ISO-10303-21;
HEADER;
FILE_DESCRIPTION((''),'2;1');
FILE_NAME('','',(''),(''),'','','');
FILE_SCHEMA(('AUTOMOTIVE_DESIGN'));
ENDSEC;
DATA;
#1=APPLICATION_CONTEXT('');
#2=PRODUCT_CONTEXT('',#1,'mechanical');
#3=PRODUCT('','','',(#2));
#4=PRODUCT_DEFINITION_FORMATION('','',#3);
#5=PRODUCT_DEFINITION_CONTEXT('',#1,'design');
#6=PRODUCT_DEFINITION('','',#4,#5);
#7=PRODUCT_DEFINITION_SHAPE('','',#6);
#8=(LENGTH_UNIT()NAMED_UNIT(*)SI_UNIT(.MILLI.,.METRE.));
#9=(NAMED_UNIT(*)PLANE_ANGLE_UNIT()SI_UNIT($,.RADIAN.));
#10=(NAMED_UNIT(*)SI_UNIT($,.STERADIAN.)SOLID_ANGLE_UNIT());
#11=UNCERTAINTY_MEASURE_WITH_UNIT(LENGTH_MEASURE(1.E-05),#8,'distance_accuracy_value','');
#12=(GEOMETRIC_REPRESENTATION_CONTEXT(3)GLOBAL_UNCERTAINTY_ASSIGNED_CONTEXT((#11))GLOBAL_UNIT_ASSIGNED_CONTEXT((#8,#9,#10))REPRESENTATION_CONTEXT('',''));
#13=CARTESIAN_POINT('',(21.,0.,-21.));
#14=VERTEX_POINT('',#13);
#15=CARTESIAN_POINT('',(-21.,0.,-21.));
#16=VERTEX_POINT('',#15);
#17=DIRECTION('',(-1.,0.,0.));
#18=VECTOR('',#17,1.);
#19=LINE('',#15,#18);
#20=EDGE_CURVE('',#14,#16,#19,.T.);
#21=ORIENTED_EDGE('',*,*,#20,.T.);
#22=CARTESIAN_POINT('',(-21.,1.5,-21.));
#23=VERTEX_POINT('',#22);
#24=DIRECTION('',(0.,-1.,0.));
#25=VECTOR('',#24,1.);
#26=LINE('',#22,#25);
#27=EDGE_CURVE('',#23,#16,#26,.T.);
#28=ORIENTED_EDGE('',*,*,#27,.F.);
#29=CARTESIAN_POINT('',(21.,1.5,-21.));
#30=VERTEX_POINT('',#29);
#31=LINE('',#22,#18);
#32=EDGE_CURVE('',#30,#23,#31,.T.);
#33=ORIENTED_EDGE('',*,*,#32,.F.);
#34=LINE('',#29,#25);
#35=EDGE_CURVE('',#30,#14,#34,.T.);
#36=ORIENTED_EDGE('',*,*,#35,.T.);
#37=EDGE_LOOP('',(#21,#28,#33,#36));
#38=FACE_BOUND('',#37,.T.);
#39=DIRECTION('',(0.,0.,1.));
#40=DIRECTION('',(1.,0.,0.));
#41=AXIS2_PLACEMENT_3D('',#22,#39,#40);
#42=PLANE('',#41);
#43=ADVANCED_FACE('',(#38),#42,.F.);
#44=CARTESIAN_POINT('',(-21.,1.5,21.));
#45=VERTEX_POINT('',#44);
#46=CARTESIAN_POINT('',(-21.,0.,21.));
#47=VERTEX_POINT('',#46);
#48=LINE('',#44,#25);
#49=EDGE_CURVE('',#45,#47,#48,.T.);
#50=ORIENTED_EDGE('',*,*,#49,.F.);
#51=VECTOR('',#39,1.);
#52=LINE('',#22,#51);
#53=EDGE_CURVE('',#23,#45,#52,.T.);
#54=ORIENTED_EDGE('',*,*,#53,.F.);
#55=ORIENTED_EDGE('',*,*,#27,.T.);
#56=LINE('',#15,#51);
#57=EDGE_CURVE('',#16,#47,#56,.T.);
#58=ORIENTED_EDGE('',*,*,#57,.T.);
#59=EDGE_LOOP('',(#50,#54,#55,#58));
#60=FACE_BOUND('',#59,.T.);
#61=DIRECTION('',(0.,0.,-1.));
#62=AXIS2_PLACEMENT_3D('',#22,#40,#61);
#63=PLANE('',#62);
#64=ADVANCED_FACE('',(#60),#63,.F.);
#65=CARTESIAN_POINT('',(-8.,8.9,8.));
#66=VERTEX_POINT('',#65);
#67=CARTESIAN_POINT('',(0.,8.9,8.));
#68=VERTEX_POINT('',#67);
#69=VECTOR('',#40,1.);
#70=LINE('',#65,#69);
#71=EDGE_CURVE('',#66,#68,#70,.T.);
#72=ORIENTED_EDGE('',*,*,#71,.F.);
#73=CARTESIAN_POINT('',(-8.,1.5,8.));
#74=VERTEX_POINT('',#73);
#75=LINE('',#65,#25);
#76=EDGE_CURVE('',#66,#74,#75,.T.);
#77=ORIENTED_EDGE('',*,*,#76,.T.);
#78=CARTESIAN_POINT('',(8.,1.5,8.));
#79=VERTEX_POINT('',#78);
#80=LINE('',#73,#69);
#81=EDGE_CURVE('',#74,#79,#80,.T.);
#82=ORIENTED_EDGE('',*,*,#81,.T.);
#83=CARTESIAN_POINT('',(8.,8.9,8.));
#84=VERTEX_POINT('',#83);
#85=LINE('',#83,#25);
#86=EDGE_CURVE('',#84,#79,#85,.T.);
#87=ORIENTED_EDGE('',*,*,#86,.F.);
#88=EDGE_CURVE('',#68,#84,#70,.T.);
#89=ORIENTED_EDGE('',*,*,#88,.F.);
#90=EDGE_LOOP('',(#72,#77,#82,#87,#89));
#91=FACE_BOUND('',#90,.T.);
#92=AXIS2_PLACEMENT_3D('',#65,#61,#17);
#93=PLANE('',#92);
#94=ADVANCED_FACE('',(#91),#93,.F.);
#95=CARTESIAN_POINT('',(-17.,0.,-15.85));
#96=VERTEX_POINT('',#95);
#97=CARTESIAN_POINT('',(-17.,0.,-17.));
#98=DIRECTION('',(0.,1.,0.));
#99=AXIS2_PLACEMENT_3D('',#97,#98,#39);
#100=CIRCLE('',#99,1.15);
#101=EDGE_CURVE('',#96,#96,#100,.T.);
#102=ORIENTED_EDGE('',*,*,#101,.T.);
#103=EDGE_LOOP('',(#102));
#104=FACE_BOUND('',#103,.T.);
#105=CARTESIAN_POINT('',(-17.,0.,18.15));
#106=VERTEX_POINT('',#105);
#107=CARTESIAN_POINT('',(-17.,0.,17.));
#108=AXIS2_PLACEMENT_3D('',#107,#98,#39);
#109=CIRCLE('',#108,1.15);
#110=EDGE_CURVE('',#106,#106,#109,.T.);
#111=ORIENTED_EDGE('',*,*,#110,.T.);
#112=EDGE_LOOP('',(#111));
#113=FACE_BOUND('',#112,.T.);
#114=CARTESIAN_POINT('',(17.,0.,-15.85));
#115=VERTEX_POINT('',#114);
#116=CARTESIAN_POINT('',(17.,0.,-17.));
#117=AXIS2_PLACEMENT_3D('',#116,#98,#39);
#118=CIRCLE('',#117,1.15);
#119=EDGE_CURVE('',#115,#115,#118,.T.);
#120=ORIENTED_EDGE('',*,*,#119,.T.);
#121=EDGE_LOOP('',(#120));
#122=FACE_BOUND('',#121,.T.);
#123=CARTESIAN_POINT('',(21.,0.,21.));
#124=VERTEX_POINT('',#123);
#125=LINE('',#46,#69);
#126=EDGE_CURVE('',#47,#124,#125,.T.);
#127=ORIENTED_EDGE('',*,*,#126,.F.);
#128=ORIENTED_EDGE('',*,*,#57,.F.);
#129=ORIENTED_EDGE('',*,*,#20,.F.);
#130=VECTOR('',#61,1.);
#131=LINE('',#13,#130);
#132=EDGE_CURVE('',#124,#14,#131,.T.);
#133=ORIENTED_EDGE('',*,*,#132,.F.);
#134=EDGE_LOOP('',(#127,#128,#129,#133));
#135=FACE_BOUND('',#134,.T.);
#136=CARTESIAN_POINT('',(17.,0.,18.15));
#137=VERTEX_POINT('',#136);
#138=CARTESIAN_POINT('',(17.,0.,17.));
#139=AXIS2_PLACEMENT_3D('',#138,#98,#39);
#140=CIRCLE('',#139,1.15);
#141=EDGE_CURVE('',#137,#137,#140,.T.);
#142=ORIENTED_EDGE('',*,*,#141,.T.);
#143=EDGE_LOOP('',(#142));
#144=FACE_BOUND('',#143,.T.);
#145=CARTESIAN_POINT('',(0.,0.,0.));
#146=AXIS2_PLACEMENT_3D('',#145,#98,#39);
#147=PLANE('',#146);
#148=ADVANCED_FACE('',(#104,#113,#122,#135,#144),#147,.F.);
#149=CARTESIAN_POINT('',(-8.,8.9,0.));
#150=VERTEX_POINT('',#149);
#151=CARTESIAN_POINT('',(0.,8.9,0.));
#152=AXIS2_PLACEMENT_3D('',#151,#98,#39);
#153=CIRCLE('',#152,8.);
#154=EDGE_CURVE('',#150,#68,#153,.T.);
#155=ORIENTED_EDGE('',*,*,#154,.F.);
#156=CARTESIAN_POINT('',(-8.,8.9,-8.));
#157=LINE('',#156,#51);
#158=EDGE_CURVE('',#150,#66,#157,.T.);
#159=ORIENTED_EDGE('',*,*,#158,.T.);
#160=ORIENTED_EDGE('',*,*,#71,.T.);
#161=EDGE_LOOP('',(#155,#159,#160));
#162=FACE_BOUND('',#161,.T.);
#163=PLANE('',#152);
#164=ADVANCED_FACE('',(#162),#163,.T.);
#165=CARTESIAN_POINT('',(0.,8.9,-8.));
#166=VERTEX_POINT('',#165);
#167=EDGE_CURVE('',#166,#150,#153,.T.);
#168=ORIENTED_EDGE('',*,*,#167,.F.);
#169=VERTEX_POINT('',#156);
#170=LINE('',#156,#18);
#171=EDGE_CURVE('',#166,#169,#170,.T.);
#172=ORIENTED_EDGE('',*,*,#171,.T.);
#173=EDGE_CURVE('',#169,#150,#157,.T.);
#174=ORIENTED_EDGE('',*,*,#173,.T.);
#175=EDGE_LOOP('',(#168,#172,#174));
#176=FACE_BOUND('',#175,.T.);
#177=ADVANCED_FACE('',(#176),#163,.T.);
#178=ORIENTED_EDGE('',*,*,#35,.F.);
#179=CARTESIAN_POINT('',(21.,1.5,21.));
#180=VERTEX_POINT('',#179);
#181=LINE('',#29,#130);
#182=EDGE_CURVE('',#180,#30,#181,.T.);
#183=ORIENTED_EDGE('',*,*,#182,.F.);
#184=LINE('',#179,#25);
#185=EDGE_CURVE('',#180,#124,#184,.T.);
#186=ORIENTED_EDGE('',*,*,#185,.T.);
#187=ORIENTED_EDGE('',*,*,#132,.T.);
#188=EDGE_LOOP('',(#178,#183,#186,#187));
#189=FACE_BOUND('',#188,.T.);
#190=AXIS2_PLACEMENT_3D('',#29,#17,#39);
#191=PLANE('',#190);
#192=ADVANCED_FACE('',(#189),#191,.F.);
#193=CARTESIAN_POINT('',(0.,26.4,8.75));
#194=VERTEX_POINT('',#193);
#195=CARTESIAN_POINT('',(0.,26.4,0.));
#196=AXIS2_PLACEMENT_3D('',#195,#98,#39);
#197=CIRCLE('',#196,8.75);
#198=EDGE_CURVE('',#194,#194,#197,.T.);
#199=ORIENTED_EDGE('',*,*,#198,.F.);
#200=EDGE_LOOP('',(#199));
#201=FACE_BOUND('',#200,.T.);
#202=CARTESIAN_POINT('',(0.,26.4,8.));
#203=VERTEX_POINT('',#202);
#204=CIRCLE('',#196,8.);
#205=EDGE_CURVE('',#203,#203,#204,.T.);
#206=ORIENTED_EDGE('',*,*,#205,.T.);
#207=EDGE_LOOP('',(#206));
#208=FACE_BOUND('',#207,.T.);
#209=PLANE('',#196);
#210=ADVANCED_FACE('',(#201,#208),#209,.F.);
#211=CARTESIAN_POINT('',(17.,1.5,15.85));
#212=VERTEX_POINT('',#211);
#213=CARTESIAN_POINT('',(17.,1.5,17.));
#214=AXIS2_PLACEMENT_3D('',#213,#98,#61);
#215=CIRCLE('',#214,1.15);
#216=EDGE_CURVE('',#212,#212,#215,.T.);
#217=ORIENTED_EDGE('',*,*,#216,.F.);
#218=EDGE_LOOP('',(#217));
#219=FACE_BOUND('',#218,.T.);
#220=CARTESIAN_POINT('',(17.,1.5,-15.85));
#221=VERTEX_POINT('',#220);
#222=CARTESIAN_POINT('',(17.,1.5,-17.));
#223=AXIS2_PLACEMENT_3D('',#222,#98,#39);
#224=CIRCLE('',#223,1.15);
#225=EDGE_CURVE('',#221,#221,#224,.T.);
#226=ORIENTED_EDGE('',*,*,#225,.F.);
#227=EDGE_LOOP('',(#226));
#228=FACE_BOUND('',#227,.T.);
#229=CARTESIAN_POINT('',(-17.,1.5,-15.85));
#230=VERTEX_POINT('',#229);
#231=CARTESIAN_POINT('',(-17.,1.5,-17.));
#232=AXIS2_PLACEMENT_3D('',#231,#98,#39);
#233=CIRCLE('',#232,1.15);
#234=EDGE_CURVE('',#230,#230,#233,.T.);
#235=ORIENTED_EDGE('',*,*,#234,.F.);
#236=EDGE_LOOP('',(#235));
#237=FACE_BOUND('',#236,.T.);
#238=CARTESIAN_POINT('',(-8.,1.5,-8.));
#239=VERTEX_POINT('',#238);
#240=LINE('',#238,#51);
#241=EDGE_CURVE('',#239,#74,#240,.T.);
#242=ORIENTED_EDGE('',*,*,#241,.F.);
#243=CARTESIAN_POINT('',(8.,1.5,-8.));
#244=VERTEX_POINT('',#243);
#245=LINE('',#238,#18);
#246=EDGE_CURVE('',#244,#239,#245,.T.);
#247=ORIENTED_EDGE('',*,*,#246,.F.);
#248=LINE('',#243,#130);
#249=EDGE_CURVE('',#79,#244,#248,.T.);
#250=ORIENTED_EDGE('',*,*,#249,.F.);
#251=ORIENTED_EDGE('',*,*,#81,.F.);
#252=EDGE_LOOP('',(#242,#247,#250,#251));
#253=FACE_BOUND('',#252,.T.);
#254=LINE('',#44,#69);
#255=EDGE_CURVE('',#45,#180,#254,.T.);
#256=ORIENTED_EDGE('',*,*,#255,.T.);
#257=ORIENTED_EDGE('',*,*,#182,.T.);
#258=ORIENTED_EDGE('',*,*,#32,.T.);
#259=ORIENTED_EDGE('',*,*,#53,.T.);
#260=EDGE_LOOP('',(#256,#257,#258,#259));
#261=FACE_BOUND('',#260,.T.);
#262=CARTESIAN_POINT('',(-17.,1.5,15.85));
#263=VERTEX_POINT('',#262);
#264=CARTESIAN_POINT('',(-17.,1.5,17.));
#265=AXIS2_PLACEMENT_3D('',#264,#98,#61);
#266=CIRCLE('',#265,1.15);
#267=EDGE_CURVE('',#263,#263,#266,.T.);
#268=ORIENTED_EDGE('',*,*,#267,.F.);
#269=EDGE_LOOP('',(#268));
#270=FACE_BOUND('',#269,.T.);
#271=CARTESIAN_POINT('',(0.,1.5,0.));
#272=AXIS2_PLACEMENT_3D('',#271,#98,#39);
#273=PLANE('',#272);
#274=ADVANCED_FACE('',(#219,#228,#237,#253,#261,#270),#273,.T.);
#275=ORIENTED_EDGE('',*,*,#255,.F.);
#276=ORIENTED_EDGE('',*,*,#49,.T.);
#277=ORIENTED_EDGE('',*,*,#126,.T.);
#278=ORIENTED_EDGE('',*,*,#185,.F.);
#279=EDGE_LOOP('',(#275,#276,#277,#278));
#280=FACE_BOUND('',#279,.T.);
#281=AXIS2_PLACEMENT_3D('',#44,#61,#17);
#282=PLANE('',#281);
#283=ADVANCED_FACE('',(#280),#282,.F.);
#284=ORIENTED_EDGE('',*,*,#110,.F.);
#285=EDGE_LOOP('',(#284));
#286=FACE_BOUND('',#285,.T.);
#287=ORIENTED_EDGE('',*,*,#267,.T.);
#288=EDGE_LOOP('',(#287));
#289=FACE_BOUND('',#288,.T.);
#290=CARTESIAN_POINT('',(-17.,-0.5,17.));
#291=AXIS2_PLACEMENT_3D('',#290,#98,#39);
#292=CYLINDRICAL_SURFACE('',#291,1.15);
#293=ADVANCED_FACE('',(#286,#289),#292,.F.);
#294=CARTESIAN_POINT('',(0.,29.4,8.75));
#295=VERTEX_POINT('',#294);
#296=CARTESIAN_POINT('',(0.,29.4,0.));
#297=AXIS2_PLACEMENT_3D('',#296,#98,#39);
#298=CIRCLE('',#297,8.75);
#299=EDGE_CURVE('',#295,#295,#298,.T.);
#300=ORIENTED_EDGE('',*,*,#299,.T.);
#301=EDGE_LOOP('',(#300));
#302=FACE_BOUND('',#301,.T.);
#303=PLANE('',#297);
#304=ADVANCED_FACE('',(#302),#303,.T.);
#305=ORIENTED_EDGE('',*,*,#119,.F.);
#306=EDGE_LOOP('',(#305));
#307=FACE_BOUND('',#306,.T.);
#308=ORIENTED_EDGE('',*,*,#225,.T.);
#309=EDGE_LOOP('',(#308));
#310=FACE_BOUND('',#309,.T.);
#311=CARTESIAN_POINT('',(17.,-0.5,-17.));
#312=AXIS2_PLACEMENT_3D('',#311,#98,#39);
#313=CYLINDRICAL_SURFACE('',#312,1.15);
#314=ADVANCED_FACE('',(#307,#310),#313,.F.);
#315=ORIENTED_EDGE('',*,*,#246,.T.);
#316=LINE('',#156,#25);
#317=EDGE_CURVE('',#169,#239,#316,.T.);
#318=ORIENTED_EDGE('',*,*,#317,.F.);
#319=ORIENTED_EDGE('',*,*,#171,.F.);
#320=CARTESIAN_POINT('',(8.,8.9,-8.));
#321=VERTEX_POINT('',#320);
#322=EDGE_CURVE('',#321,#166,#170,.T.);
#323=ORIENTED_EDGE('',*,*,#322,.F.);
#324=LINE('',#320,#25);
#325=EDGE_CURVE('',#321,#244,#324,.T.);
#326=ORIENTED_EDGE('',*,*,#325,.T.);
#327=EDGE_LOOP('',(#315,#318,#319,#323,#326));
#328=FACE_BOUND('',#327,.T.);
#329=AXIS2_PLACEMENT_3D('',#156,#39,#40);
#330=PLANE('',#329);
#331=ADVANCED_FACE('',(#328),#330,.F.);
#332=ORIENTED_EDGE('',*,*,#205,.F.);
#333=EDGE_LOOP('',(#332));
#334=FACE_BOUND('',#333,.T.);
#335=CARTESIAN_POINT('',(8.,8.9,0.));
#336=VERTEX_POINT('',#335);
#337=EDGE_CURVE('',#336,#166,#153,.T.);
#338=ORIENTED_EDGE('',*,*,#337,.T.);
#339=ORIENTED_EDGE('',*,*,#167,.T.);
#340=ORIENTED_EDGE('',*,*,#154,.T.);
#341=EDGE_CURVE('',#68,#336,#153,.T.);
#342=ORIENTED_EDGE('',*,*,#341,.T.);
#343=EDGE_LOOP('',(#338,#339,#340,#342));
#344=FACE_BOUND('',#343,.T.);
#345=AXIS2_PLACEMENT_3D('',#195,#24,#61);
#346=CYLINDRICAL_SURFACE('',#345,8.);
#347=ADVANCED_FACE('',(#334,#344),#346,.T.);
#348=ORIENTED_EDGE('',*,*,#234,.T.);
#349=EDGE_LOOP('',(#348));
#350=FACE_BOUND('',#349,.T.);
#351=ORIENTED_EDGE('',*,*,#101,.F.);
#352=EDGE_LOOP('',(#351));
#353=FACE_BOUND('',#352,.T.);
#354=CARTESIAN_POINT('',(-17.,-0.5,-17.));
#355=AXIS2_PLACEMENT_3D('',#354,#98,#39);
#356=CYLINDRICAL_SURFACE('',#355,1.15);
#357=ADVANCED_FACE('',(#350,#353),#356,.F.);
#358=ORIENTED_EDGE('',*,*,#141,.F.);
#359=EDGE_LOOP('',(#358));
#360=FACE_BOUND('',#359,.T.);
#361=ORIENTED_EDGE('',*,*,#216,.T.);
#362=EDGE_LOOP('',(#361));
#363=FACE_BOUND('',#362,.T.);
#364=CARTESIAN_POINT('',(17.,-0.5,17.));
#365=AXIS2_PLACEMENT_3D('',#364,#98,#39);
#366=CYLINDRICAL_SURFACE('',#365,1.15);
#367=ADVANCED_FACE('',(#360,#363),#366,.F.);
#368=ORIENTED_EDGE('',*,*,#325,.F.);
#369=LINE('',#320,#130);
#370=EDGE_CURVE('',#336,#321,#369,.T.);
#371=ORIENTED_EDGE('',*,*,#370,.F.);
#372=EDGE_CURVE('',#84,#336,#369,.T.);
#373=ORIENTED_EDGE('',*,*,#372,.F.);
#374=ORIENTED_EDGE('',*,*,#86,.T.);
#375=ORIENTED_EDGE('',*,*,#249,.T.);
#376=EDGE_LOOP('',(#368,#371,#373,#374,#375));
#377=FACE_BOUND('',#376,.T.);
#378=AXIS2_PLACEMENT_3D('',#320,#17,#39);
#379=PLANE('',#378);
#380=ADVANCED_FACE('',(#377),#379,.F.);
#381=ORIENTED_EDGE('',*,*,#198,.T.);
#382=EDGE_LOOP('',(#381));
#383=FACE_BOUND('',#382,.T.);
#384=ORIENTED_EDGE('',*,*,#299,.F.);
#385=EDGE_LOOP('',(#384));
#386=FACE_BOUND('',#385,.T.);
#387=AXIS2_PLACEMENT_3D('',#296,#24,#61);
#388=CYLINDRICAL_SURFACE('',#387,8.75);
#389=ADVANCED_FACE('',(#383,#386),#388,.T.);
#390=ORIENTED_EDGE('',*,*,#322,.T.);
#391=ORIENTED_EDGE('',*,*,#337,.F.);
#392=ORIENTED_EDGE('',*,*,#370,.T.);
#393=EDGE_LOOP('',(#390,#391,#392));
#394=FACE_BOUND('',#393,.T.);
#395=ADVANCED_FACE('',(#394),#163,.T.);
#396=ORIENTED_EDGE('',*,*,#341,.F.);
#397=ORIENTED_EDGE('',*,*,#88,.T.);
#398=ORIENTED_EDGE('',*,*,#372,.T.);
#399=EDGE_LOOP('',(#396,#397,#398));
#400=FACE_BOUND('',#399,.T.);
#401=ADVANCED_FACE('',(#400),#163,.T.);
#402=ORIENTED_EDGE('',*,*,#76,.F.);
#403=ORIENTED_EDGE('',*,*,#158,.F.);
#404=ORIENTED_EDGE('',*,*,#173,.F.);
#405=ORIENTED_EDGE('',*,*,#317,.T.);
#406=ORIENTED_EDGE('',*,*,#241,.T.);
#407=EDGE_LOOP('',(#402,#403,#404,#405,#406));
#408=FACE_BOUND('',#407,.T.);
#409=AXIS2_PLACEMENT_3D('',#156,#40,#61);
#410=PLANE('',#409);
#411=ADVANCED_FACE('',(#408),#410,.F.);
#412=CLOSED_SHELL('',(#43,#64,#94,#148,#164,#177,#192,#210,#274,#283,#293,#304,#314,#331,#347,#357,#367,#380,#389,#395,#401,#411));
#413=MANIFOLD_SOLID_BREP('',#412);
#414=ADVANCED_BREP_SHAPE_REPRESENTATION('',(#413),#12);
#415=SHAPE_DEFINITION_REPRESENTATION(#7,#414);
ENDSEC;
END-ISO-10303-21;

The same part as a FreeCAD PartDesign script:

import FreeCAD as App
import Part
import Sketcher
Q = App.Units.Quantity

doc = App.newDocument("Part")
params = doc.addObject("Spreadsheet::Sheet", "Params")
for row, (alias, value) in enumerate([
    ("sketch1_width", "42 mm"),
    ("pad1_length", "1.5 mm"),
    ("sketch2_diameter", "2.3 mm"),
    ("pocket1_length", "2 mm"),
    ("sketch3_diameter", "16 mm"),
    ("pad2_length", "24.9 mm"),
    ("sketch4_width", "16 mm"),
    ("pad3_length", "7.4 mm"),
    ("sketch5_diameter", "17.5 mm"),
    ("pad4_length", "3 mm"),
], start=1):
    params.set(f"A{row}", alias)
    params.set(f"B{row}", "=" + value)
    params.setAlias(f"B{row}", alias)

body = doc.addObject("PartDesign::Body", "Body")

sketch1 = doc.addObject("Sketcher::SketchObject", "Sketch")
body.addObject(sketch1)
sketch1.AttachmentSupport = (doc.XZ_Plane, [""])
sketch1.MapMode = "FlatFace"
sketch1.addGeometry([
    Part.LineSegment(App.Vector(-21, -21, 0), App.Vector(-21, 21, 0)),
    Part.LineSegment(App.Vector(-21, 21, 0), App.Vector(21, 21, 0)),
    Part.LineSegment(App.Vector(21, 21, 0), App.Vector(21, -21, 0)),
    Part.LineSegment(App.Vector(21, -21, 0), App.Vector(-21, -21, 0)),
], False)
sketch1.addConstraint([
    Sketcher.Constraint("Coincident", 0, 2, 1, 1),
    Sketcher.Constraint("Coincident", 1, 2, 2, 1),
    Sketcher.Constraint("Coincident", 2, 2, 3, 1),
    Sketcher.Constraint("Coincident", 3, 2, 0, 1),
    Sketcher.Constraint("Vertical", 0),
    Sketcher.Constraint("Horizontal", 1),
    Sketcher.Constraint("Vertical", 2),
    Sketcher.Constraint("Horizontal", 3),
    Sketcher.Constraint("Symmetric", 0, 2, 2, 2, -1, 1),
    Sketcher.Constraint("Equal", 3, 0),
    Sketcher.Constraint("DistanceX", 1, 1, 1, 2, Q("42 mm")),
])
sketch1.setExpression("Constraints[10]", "Params.sketch1_width")
pad1 = doc.addObject("PartDesign::Pad", "Pad")
body.addObject(pad1)
pad1.Profile = sketch1
pad1.setExpression("Length", "Params.pad1_length")
pad1.Reversed = True

sketch2 = doc.addObject("Sketcher::SketchObject", "Sketch001")
body.addObject(sketch2)
sketch2.AttachmentSupport = (doc.XZ_Plane, [""])
sketch2.MapMode = "FlatFace"
sketch2.AttachmentOffset = App.Placement(App.Vector(0, 0, -1.5), App.Rotation())
sketch2.addGeometry([
    Part.Circle(App.Vector(-17, -17, 0), App.Vector(0, 0, 1), 1.1),
    Part.Circle(App.Vector(17, -17, 0), App.Vector(0, 0, 1), 1.1),
    Part.Circle(App.Vector(-17, 17, 0), App.Vector(0, 0, 1), 1.1),
    Part.Circle(App.Vector(17, 17, 0), App.Vector(0, 0, 1), 1.1),
], False)
sketch2.addConstraint([
    Sketcher.Constraint("Equal", 0, 1),
    Sketcher.Constraint("Equal", 1, 2),
    Sketcher.Constraint("Equal", 2, 3),
    Sketcher.Constraint("Symmetric", 1, 3, 2, 3, -1, 1),
    Sketcher.Constraint("Symmetric", 0, 3, 3, 3, -1, 1),
    Sketcher.Constraint("Symmetric", 0, 3, 1, 3, -2),
    Sketcher.Constraint("Diameter", 0, Q("2.3 mm")),
    Sketcher.Constraint("DistanceX", 0, 3, -1, 1, Q("17 mm")),
    Sketcher.Constraint("DistanceY", 0, 3, -1, 1, Q("17 mm")),
])
sketch2.setExpression("Constraints[6]", "Params.sketch2_diameter")
pocket1 = doc.addObject("PartDesign::Pocket", "Pocket")
body.addObject(pocket1)
pocket1.Profile = sketch2
pocket1.setExpression("Length", "Params.pocket1_length")
pocket1.Reversed = True

sketch3 = doc.addObject("Sketcher::SketchObject", "Sketch002")
body.addObject(sketch3)
sketch3.AttachmentSupport = (doc.XZ_Plane, [""])
sketch3.MapMode = "FlatFace"
sketch3.AttachmentOffset = App.Placement(App.Vector(0, 0, -1.5), App.Rotation())
sketch3.addGeometry(Part.Circle(App.Vector(0, 0, 0), App.Vector(0, 0, 1), 8), False)
sketch3.addConstraint([
    Sketcher.Constraint("Coincident", 0, 3, -1, 1),
    Sketcher.Constraint("Diameter", 0, Q("16 mm")),
])
sketch3.setExpression("Constraints[1]", "Params.sketch3_diameter")
pad2 = doc.addObject("PartDesign::Pad", "Pad001")
body.addObject(pad2)
pad2.Profile = sketch3
pad2.setExpression("Length", "Params.pad2_length")
pad2.Reversed = True

sketch4 = doc.addObject("Sketcher::SketchObject", "Sketch003")
body.addObject(sketch4)
sketch4.AttachmentSupport = (doc.XZ_Plane, [""])
sketch4.MapMode = "FlatFace"
sketch4.AttachmentOffset = App.Placement(App.Vector(0, 0, -1.5), App.Rotation())
sketch4.addGeometry([
    Part.LineSegment(App.Vector(-8, -8, 0), App.Vector(-8, 8, 0)),
    Part.LineSegment(App.Vector(-8, 8, 0), App.Vector(8, 8, 0)),
    Part.LineSegment(App.Vector(8, 8, 0), App.Vector(8, -8, 0)),
    Part.LineSegment(App.Vector(8, -8, 0), App.Vector(-8, -8, 0)),
], False)
sketch4.addConstraint([
    Sketcher.Constraint("Coincident", 0, 2, 1, 1),
    Sketcher.Constraint("Coincident", 1, 2, 2, 1),
    Sketcher.Constraint("Coincident", 2, 2, 3, 1),
    Sketcher.Constraint("Coincident", 3, 2, 0, 1),
    Sketcher.Constraint("Vertical", 0),
    Sketcher.Constraint("Horizontal", 1),
    Sketcher.Constraint("Vertical", 2),
    Sketcher.Constraint("Horizontal", 3),
    Sketcher.Constraint("Symmetric", 0, 2, 2, 2, -1, 1),
    Sketcher.Constraint("Equal", 3, 0),
    Sketcher.Constraint("DistanceX", 1, 1, 1, 2, Q("16 mm")),
])
sketch4.setExpression("Constraints[10]", "Params.sketch4_width")
pad3 = doc.addObject("PartDesign::Pad", "Pad002")
body.addObject(pad3)
pad3.Profile = sketch4
pad3.setExpression("Length", "Params.pad3_length")
pad3.Reversed = True

sketch5 = doc.addObject("Sketcher::SketchObject", "Sketch004")
body.addObject(sketch5)
sketch5.AttachmentSupport = (doc.XZ_Plane, [""])
sketch5.MapMode = "FlatFace"
sketch5.AttachmentOffset = App.Placement(App.Vector(0, 0, -26.4), App.Rotation())
sketch5.addGeometry(Part.Circle(App.Vector(0, 0, 0), App.Vector(0, 0, 1), 9), False)
sketch5.addConstraint([
    Sketcher.Constraint("Coincident", 0, 3, -1, 1),
    Sketcher.Constraint("Diameter", 0, Q("17.5 mm")),
])
sketch5.setExpression("Constraints[1]", "Params.sketch5_diameter")
pad4 = doc.addObject("PartDesign::Pad", "Pad003")
body.addObject(pad4)
pad4.Profile = sketch5
pad4.setExpression("Length", "Params.pad4_length")
pad4.Reversed = True

doc.recompute()
